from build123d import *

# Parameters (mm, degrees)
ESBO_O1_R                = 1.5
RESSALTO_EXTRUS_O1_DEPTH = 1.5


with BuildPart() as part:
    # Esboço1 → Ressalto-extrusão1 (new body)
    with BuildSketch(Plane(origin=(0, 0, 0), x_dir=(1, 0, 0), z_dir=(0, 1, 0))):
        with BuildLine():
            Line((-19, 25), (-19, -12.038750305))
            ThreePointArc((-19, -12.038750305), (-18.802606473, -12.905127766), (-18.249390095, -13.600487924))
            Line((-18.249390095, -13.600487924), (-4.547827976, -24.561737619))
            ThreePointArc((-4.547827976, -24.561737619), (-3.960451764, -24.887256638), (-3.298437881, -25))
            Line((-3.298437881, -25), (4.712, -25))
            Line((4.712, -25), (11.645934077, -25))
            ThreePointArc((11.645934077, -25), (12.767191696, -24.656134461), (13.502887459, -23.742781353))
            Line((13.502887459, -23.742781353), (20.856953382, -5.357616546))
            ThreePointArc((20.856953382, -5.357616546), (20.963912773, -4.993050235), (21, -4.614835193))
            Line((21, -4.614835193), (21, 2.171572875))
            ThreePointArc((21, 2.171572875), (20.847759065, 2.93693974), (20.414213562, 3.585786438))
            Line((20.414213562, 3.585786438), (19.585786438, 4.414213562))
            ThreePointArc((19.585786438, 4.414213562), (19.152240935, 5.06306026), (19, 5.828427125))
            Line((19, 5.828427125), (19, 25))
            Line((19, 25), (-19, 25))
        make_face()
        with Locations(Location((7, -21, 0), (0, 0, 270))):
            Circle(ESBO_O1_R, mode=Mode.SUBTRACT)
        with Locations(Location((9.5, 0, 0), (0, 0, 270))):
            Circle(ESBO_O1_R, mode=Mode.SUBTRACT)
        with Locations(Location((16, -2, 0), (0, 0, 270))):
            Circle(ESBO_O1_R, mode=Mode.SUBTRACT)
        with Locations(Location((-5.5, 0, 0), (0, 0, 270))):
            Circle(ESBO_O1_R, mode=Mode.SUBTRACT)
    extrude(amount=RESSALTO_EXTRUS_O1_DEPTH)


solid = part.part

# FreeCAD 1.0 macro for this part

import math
import FreeCAD as App
import Part
import Sketcher
from FreeCAD import Vector
Q = App.Units.Quantity

doc = App.newDocument("Part")
params = doc.addObject("Spreadsheet::Sheet", "Params")
for row, (alias, value) in enumerate([
    ("sketch1_diameter", "3 mm"),
    ("sketch1_radius", "2 mm"),
    ("sketch1_width", "38 mm"),
    ("pad1_length", "1.5 mm"),
], start=1):
    params.set(f"A{row}", alias)
    params.set(f"B{row}", "=" + value)
    params.setAlias(f"B{row}", alias)

body = doc.addObject("PartDesign::Body", "Body")

# Sketch on XZ plane
sketch1 = doc.addObject("Sketcher::SketchObject", "Sketch")
body.addObject(sketch1)
sketch1.AttachmentSupport = (doc.XZ_Plane, [""])
sketch1.MapMode = "FlatFace"
sketch1.addGeometry(Part.LineSegment(Vector(-19, -25, 0), Vector(-19, 12, 0)), False)
sketch1.addGeometry(Part.ArcOfCircle(Part.Circle(Vector(-17, 12, 0), Vector(0, 0, 1), 2), math.radians(129), math.radians(180)), False)
sketch1.addGeometry(Part.LineSegment(Vector(-18.2, 13.6, 0), Vector(-4.5, 24.6, 0)), False)
sketch1.addGeometry(Part.ArcOfCircle(Part.Circle(Vector(-3.3, 23, 0), Vector(0, 0, 1), 2), math.radians(90), math.radians(129)), False)
sketch1.addGeometry(Part.LineSegment(Vector(-3.3, 25, 0), Vector(11.6, 25, 0)), False)
sketch1.addGeometry(Part.ArcOfCircle(Part.Circle(Vector(11.6, 23, 0), Vector(0, 0, 1), 2), math.radians(22), math.radians(90)), False)
sketch1.addGeometry(Part.LineSegment(Vector(13.5, 23.7, 0), Vector(20.9, 5.4, 0)), False)
sketch1.addGeometry(Part.ArcOfCircle(Part.Circle(Vector(19, 4.6, 0), Vector(0, 0, 1), 2), math.radians(0), math.radians(22)), False)
sketch1.addGeometry(Part.LineSegment(Vector(21, 4.6, 0), Vector(21, -2.2, 0)), False)
sketch1.addGeometry(Part.ArcOfCircle(Part.Circle(Vector(19, -2.2, 0), Vector(0, 0, 1), 2), math.radians(-45), math.radians(0)), False)
sketch1.addGeometry(Part.LineSegment(Vector(20.4, -3.6, 0), Vector(19.6, -4.4, 0)), False)
sketch1.addGeometry(Part.ArcOfCircle(Part.Circle(Vector(21, -5.8, 0), Vector(0, 0, 1), 2), math.radians(135), math.radians(180)), False)
sketch1.addGeometry(Part.LineSegment(Vector(19, -5.8, 0), Vector(19, -25, 0)), False)
sketch1.addGeometry(Part.LineSegment(Vector(19, -25, 0), Vector(-19, -25, 0)), False)
sketch1.addGeometry(Part.Circle(Vector(7, 21, 0), Vector(0, 0, 1), 1.5), False)
sketch1.addGeometry(Part.Circle(Vector(-5.5, 0, 0), Vector(0, 0, 1), 1.5), False)
sketch1.addGeometry(Part.Circle(Vector(9.5, 0, 0), Vector(0, 0, 1), 1.5), False)
sketch1.addGeometry(Part.Circle(Vector(16, 2, 0), Vector(0, 0, 1), 1.5), False)
sketch1.addConstraint(Sketcher.Constraint("Tangent", 0, 2, 1, 2))
sketch1.addConstraint(Sketcher.Constraint("Tangent", 1, 1, 2, 1))
sketch1.addConstraint(Sketcher.Constraint("Tangent", 2, 2, 3, 2))
sketch1.addConstraint(Sketcher.Constraint("Tangent", 3, 1, 4, 1))
sketch1.addConstraint(Sketcher.Constraint("Tangent", 4, 2, 5, 2))
sketch1.addConstraint(Sketcher.Constraint("Tangent", 5, 1, 6, 1))
sketch1.addConstraint(Sketcher.Constraint("Tangent", 6, 2, 7, 2))
sketch1.addConstraint(Sketcher.Constraint("Tangent", 7, 1, 8, 1))
sketch1.addConstraint(Sketcher.Constraint("Tangent", 8, 2, 9, 2))
sketch1.addConstraint(Sketcher.Constraint("Tangent", 9, 1, 10, 1))
sketch1.addConstraint(Sketcher.Constraint("Tangent", 10, 2, 11, 1))
sketch1.addConstraint(Sketcher.Constraint("Tangent", 11, 2, 12, 1))
sketch1.addConstraint(Sketcher.Constraint("Coincident", 12, 2, 13, 1))
sketch1.addConstraint(Sketcher.Constraint("Coincident", 13, 2, 0, 1))
sketch1.addConstraint(Sketcher.Constraint("Vertical", 0))
sketch1.addConstraint(Sketcher.Constraint("Horizontal", 4))
sketch1.addConstraint(Sketcher.Constraint("Vertical", 8))
sketch1.addConstraint(Sketcher.Constraint("Vertical", 12))
sketch1.addConstraint(Sketcher.Constraint("Horizontal", 13))
sketch1.addConstraint(Sketcher.Constraint("Equal", 1, 3))
sketch1.addConstraint(Sketcher.Constraint("Equal", 3, 5))
sketch1.addConstraint(Sketcher.Constraint("Equal", 5, 7))
sketch1.addConstraint(Sketcher.Constraint("Equal", 7, 9))
sketch1.addConstraint(Sketcher.Constraint("Equal", 9, 11))
sketch1.addConstraint(Sketcher.Constraint("Equal", 14, 15))
sketch1.addConstraint(Sketcher.Constraint("Equal", 15, 16))
sketch1.addConstraint(Sketcher.Constraint("Equal", 16, 17))
sketch1.addConstraint(Sketcher.Constraint("PointOnObject", 15, 3, -1))
sketch1.addConstraint(Sketcher.Constraint("PointOnObject", 16, 3, -1))
sketch1.addConstraint(Sketcher.Constraint("Vertical", 11, 3, 7, 1))
sketch1.addConstraint(Sketcher.Constraint("Diameter", 14, Q("3 mm")))
sketch1.addConstraint(Sketcher.Constraint("Radius", 1, Q("2 mm")))
sketch1.addConstraint(Sketcher.Constraint("DistanceX", 13, 2, 13, 1, Q("38 mm")))
sketch1.addConstraint(Sketcher.Constraint("Angle", 10, Q("-135 deg")))
sketch1.addConstraint(Sketcher.Constraint("DistanceX", 1, 3, -1, 1, Q("17 mm")))
sketch1.addConstraint(Sketcher.Constraint("DistanceY", -1, 1, 3, 3, Q("23 mm")))
sketch1.addConstraint(Sketcher.Constraint("DistanceX", -1, 1, 14, 3, Q("7 mm")))
sketch1.addConstraint(Sketcher.Constraint("DistanceY", -1, 1, 14, 3, Q("21 mm")))
sketch1.addConstraint(Sketcher.Constraint("DistanceX", -1, 1, 17, 3, Q("16 mm")))
sketch1.addConstraint(Sketcher.Constraint("DistanceY", -1, 1, 17, 3, Q("2 mm")))
sketch1.addConstraint(Sketcher.Constraint("DistanceY", 12, 2, -1, 1, Q("25 mm")))
sketch1.addConstraint(Sketcher.Constraint("DistanceX", 15, 3, 16, 3, Q("15 mm")))
sketch1.addConstraint(Sketcher.Constraint("DistanceX", 15, 3, -1, 1, Q("5.5 mm")))
sketch1.addConstraint(Sketcher.Constraint("DistanceX", 4, 1, 4, 2, Q("14.944372 mm")))
sketch1.addConstraint(Sketcher.Constraint("DistanceY", 0, 1, 0, 2, Q("37.03875 mm")))
sketch1.addConstraint(Sketcher.Constraint("DistanceY", 8, 2, 8, 1, Q("6.786408 mm")))
sketch1.addConstraint(Sketcher.Constraint("Distance", 2, Q("17.546561 mm")))
sketch1.addConstraint(Sketcher.Constraint("Distance", 6, Q("19.801428 mm")))
sketch1.setExpression("Constraints[30]", "Params.sketch1_diameter")
sketch1.setExpression("Constraints[31]", "Params.sketch1_radius")
sketch1.setExpression("Constraints[32]", "Params.sketch1_width")
pad1 = doc.addObject("PartDesign::Pad", "Pad")
body.addObject(pad1)
pad1.Profile = sketch1
pad1.setExpression("Length", "Params.pad1_length")
pad1.Reversed = True

doc.recompute()
